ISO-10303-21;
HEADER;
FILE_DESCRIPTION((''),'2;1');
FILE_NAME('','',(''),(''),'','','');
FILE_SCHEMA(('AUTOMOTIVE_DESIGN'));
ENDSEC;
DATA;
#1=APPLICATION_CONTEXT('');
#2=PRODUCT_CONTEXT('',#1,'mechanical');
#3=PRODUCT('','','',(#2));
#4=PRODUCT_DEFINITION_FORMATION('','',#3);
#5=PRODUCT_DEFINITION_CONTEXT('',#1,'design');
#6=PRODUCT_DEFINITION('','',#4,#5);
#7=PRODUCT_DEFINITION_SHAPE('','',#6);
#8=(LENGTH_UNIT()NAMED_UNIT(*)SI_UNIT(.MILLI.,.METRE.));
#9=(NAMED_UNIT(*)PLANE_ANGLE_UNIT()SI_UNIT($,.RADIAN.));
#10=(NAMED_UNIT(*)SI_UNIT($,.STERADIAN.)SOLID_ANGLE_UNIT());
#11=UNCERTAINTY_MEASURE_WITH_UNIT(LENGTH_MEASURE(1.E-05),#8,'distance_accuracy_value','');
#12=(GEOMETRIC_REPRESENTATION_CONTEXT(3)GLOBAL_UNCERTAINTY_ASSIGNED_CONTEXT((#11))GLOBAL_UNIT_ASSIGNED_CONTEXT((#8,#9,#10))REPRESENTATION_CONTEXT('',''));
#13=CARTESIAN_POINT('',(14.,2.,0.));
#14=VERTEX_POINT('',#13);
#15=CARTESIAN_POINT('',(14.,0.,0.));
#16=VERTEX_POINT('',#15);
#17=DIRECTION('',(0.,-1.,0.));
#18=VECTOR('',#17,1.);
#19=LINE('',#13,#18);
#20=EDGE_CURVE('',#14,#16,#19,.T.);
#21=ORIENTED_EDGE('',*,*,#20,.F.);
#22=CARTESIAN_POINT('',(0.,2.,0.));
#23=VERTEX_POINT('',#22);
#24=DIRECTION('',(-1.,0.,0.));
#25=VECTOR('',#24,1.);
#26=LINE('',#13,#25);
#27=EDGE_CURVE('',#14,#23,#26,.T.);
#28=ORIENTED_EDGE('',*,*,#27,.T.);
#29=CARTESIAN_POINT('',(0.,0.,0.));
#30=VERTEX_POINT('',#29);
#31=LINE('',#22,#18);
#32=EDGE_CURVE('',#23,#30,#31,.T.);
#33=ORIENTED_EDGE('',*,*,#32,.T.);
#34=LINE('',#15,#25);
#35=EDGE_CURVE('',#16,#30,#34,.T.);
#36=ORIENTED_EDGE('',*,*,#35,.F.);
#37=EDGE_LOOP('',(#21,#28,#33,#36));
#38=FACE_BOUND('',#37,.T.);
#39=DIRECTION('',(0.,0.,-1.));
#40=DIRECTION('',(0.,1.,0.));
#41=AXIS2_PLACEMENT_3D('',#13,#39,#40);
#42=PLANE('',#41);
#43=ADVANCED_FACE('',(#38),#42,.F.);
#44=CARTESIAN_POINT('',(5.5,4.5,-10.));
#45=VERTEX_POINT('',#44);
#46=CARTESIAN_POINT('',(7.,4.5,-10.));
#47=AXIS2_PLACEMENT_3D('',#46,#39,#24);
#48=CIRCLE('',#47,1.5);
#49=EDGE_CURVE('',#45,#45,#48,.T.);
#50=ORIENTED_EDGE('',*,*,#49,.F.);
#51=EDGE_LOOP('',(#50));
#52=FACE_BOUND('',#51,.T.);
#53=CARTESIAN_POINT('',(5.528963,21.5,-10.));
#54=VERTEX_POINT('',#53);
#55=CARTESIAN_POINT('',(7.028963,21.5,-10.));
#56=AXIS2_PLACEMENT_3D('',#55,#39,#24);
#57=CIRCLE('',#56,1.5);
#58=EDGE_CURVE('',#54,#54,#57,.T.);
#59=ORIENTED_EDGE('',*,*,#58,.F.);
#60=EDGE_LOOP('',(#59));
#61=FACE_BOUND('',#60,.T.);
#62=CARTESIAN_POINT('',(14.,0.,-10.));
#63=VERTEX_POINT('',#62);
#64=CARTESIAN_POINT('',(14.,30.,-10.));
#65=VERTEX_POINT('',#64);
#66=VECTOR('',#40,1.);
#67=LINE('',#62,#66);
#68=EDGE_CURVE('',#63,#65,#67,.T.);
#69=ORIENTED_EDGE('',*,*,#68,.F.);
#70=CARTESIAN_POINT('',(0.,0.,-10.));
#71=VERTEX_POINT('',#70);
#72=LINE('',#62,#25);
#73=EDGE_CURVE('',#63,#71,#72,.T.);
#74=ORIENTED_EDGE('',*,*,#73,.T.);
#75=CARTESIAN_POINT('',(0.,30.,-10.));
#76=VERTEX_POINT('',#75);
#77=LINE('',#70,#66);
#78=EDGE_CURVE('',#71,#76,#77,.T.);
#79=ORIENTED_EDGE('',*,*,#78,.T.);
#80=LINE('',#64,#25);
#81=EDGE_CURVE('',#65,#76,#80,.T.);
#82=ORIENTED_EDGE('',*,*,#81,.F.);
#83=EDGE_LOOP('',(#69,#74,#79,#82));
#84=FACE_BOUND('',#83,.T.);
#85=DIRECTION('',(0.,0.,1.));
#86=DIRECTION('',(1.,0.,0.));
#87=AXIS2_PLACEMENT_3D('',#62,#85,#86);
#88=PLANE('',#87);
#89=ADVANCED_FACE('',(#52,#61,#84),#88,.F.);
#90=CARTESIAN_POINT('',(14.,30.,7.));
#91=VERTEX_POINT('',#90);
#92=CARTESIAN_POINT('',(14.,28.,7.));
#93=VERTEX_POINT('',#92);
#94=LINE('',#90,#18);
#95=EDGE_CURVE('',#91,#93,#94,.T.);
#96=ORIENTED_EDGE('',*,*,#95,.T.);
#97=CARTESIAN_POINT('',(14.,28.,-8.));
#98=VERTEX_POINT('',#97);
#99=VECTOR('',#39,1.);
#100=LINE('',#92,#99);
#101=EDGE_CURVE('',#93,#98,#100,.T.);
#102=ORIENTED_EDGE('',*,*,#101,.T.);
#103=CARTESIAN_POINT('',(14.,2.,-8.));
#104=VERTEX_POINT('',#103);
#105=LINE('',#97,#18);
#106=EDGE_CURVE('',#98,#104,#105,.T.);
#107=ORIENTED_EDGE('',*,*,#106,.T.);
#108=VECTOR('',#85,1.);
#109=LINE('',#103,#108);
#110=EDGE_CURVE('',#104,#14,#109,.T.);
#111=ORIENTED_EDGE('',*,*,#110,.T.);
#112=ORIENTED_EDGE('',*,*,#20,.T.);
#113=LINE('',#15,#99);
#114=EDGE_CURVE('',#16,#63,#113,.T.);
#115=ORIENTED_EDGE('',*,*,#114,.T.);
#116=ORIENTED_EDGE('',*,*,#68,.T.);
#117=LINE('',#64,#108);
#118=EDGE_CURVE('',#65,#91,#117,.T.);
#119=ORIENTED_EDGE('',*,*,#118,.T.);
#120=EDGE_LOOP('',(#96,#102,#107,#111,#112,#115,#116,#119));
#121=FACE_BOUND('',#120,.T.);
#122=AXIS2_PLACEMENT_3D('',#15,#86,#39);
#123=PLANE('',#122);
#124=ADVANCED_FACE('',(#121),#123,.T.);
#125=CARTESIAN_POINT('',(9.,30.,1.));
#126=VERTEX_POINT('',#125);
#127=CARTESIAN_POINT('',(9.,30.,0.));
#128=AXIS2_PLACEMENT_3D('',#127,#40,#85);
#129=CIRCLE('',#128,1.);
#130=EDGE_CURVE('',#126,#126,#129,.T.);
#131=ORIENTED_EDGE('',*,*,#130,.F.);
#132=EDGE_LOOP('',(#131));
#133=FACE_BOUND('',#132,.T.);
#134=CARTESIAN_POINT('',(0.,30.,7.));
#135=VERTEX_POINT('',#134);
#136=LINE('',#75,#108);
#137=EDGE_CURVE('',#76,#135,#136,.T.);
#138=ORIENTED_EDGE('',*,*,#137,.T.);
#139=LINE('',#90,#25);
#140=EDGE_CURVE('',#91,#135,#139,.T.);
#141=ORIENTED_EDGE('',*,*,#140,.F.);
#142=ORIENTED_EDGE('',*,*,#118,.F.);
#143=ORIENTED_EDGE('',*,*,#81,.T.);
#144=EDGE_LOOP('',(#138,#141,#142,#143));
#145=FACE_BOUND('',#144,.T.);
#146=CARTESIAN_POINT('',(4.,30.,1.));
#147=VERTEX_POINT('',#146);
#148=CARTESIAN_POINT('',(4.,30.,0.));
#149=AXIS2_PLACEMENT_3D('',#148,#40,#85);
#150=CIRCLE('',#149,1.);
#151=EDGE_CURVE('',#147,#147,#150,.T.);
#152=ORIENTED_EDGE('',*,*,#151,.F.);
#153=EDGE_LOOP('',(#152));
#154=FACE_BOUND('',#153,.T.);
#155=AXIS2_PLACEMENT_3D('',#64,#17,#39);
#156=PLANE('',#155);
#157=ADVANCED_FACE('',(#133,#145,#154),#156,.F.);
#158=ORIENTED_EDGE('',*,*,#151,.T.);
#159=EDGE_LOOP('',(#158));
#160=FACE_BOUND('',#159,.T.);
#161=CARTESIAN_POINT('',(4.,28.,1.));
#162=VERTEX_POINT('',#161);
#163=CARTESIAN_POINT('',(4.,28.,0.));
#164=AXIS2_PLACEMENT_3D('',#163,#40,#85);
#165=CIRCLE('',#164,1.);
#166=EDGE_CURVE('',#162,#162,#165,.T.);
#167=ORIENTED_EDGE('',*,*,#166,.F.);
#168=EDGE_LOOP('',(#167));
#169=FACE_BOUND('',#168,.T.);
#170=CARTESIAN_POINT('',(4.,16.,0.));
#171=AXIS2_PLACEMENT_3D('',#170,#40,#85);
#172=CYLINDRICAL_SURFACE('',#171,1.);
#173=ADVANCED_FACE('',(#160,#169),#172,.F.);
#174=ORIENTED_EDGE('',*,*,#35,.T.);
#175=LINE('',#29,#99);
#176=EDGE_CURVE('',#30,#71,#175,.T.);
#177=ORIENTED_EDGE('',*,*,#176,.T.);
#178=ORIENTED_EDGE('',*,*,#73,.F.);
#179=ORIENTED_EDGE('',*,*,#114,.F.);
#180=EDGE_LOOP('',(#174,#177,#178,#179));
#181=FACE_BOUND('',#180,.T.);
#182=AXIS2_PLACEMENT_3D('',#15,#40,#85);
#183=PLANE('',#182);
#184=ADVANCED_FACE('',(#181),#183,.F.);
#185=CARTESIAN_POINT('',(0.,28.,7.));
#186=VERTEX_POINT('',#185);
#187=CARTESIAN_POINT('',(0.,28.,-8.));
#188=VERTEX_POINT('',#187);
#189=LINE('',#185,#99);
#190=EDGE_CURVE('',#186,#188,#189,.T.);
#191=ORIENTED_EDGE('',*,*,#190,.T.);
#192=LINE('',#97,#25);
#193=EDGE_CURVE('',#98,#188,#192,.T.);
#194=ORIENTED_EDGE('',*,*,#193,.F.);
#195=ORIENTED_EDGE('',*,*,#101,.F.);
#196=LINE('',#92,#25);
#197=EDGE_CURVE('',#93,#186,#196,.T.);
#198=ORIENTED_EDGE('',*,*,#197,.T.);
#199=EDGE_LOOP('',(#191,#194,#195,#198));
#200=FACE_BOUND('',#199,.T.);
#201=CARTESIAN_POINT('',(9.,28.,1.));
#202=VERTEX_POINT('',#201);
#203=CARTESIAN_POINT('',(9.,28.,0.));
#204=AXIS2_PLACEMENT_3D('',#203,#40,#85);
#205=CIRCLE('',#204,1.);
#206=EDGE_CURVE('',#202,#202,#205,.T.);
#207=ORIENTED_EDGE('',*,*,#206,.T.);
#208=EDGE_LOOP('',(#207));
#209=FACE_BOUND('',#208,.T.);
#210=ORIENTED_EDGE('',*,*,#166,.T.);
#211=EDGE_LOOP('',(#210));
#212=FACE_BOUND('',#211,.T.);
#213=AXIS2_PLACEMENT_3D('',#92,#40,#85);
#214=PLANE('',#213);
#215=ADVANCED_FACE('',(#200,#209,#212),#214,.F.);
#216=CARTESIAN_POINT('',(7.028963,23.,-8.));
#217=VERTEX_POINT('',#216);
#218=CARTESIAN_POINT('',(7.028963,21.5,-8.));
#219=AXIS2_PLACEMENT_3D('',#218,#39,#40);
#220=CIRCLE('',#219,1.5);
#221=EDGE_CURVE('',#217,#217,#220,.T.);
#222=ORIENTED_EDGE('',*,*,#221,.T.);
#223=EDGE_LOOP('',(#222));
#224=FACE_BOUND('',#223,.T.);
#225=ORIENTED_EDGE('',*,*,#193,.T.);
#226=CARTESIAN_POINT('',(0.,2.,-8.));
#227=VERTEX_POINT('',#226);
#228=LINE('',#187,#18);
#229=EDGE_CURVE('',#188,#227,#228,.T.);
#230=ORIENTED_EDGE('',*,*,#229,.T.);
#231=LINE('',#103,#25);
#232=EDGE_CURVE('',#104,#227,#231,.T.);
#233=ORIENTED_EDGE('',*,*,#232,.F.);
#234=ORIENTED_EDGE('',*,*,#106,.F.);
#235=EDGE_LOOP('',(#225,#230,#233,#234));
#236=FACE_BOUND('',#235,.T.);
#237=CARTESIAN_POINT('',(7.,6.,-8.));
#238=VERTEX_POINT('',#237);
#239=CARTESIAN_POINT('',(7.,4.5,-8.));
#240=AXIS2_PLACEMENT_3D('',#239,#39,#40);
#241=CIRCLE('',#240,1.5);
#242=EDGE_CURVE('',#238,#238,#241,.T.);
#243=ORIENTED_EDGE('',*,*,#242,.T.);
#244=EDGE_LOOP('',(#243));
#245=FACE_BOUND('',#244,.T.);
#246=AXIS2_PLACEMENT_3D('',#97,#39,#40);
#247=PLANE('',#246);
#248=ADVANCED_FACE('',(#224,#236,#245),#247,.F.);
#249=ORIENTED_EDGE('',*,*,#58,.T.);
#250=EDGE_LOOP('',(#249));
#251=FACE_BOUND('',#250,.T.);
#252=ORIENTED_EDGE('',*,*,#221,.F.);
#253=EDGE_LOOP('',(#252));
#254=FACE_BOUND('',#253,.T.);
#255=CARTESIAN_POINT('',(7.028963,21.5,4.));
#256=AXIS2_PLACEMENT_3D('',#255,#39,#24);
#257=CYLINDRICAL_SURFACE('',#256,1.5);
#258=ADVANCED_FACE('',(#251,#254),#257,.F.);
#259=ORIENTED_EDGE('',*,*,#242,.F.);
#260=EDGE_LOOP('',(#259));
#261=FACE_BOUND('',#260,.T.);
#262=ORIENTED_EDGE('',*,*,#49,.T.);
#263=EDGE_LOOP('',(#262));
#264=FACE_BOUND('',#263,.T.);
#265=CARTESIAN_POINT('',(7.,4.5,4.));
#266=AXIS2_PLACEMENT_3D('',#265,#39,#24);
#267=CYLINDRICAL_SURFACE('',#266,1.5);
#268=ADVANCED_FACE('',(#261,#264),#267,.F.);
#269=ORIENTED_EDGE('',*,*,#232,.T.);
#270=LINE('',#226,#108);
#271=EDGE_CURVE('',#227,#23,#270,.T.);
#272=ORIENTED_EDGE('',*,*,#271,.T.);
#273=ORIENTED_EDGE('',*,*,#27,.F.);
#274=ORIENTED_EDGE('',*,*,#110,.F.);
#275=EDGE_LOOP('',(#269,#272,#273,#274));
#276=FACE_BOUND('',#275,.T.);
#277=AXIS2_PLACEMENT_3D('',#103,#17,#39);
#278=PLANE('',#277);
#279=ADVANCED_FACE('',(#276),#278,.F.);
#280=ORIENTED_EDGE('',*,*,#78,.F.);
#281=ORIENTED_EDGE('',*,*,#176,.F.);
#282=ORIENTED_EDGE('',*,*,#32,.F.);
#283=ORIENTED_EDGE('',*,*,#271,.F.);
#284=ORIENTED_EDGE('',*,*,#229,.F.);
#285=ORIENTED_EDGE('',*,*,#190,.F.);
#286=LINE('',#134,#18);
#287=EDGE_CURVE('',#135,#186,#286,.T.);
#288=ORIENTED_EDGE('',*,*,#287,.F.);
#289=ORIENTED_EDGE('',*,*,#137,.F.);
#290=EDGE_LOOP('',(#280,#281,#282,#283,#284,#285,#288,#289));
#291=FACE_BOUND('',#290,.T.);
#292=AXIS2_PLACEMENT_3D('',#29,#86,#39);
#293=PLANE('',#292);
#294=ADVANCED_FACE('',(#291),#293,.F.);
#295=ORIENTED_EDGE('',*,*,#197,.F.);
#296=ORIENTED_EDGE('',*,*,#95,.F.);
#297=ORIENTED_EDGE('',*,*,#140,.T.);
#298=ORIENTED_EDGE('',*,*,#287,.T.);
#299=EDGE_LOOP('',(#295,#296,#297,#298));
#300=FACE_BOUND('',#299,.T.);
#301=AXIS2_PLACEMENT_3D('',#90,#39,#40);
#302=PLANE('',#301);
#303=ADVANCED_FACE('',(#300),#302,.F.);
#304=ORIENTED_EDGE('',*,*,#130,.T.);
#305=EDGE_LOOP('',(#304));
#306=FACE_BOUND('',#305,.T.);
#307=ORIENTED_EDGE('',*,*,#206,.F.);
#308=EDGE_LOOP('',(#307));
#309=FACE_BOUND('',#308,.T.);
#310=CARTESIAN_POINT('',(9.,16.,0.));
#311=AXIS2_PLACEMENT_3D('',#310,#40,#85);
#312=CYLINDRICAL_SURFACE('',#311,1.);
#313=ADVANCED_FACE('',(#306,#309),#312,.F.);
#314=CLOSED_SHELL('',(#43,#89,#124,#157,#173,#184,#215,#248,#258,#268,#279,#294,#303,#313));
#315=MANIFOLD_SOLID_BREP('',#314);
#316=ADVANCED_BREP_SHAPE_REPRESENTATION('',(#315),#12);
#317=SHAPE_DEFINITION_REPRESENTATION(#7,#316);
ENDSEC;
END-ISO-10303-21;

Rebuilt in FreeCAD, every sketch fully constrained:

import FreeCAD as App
import Part
import Sketcher

V = App.Vector
Q = App.Units.Quantity


def add_polygon(sketch, points):
    """Adds a closed chain of lines whose ends are joined by coincident constraints."""
    first, n = sketch.GeometryCount, len(points)
    for a, b in zip(points, points[1:] + points[:1]):
        sketch.addGeometry(Part.LineSegment(App.Vector(*a, 0), App.Vector(*b, 0)), False)
    for i in range(n):
        sketch.addConstraint(Sketcher.Constraint("Coincident", first + i, 2, first + (i + 1) % n, 1))

doc = App.newDocument("Part")
body = doc.addObject("PartDesign::Body", "Body")

# Sketch on YZ plane
sketch1 = doc.addObject("Sketcher::SketchObject", "Sketch")
body.addObject(sketch1)
sketch1.AttachmentSupport = (doc.YZ_Plane, [""])
sketch1.MapMode = "FlatFace"
add_polygon(sketch1, [(0, 0), (0, -10), (30, -10), (30, 7), (28, 7), (28, -8), (2, -8), (2, 0)])  # lines 0-7
sketch1.addConstraint(Sketcher.Constraint("Vertical", 0))
sketch1.addConstraint(Sketcher.Constraint("Horizontal", 1))
sketch1.addConstraint(Sketcher.Constraint("Vertical", 2))
sketch1.addConstraint(Sketcher.Constraint("Horizontal", 3))
sketch1.addConstraint(Sketcher.Constraint("Vertical", 4))
sketch1.addConstraint(Sketcher.Constraint("Horizontal", 5))
sketch1.addConstraint(Sketcher.Constraint("Vertical", 6))
sketch1.addConstraint(Sketcher.Constraint("Horizontal", 7))
sketch1.addConstraint(Sketcher.Constraint("Coincident", 7, 2, -1, 1))
sketch1.addConstraint(Sketcher.Constraint("Equal", 3, 7))
sketch1.addConstraint(Sketcher.Constraint("DistanceX", 1, 1, 1, 2, Q("30 mm")))
sketch1.addConstraint(Sketcher.Constraint("DistanceX", 3, 2, 3, 1, Q("2 mm")))
sketch1.addConstraint(Sketcher.Constraint("DistanceY", 0, 2, 0, 1, Q("10 mm")))
sketch1.addConstraint(Sketcher.Constraint("DistanceY", 2, 1, 2, 2, Q("17 mm")))
sketch1.addConstraint(Sketcher.Constraint("DistanceY", 4, 2, 4, 1, Q("15 mm")))
pad1 = doc.addObject("PartDesign::Pad", "Pad")
body.addObject(pad1)
pad1.Profile = sketch1
pad1.Length = 14

# Sketch on XY plane
sketch2 = doc.addObject("Sketcher::SketchObject", "Sketch001")
body.addObject(sketch2)
sketch2.AttachmentSupport = (doc.XY_Plane, [""])
sketch2.MapMode = "FlatFace"
sketch2.AttachmentOffset = App.Placement(V(0, 0, -10), App.Rotation())
sketch2.addGeometry(Part.Circle(V(7, 21.5, 0), V(0, 0, 1), 1.5), False)
sketch2.addGeometry(Part.Circle(V(7, 4.5, 0), V(0, 0, 1), 1.5), False)
sketch2.addConstraint(Sketcher.Constraint("Equal", 0, 1))
sketch2.addConstraint(Sketcher.Constraint("Diameter", 0, Q("3 mm")))
sketch2.addConstraint(Sketcher.Constraint("DistanceX", -1, 1, 1, 3, Q("7 mm")))
sketch2.addConstraint(Sketcher.Constraint("DistanceY", 1, 3, 0, 3, Q("17 mm")))
sketch2.addConstraint(Sketcher.Constraint("DistanceY", -1, 1, 0, 3, Q("21.5 mm")))
sketch2.addConstraint(Sketcher.Constraint("DistanceX", -1, 1, 0, 3, Q("7.028963 mm")))
pocket1 = doc.addObject("PartDesign::Pocket", "Pocket")
body.addObject(pocket1)
pocket1.Profile = sketch2
pocket1.Length = 14
pocket1.Reversed = True

# Sketch on XZ plane
sketch3 = doc.addObject("Sketcher::SketchObject", "Sketch002")
body.addObject(sketch3)
sketch3.AttachmentSupport = (doc.XZ_Plane, [""])
sketch3.MapMode = "FlatFace"
sketch3.AttachmentOffset = App.Placement(V(0, 0, -30), App.Rotation())
sketch3.addGeometry(Part.Circle(V(4, 0, 0), V(0, 0, 1), 1), False)
sketch3.addGeometry(Part.Circle(V(9, 0, 0), V(0, 0, 1), 1), False)
sketch3.addConstraint(Sketcher.Constraint("Equal", 0, 1))
sketch3.addConstraint(Sketcher.Constraint("PointOnObject", 0, 3, -1))
sketch3.addConstraint(Sketcher.Constraint("PointOnObject", 1, 3, -1))
sketch3.addConstraint(Sketcher.Constraint("Diameter", 0, Q("2 mm")))
sketch3.addConstraint(Sketcher.Constraint("DistanceX", -1, 1, 0, 3, Q("4 mm")))
sketch3.addConstraint(Sketcher.Constraint("DistanceX", -1, 1, 1, 3, Q("9 mm")))
pocket2 = doc.addObject("PartDesign::Pocket", "Pocket001")
body.addObject(pocket2)
pocket2.Profile = sketch3
pocket2.Length = 14
pocket2.Reversed = True

doc.recompute()
